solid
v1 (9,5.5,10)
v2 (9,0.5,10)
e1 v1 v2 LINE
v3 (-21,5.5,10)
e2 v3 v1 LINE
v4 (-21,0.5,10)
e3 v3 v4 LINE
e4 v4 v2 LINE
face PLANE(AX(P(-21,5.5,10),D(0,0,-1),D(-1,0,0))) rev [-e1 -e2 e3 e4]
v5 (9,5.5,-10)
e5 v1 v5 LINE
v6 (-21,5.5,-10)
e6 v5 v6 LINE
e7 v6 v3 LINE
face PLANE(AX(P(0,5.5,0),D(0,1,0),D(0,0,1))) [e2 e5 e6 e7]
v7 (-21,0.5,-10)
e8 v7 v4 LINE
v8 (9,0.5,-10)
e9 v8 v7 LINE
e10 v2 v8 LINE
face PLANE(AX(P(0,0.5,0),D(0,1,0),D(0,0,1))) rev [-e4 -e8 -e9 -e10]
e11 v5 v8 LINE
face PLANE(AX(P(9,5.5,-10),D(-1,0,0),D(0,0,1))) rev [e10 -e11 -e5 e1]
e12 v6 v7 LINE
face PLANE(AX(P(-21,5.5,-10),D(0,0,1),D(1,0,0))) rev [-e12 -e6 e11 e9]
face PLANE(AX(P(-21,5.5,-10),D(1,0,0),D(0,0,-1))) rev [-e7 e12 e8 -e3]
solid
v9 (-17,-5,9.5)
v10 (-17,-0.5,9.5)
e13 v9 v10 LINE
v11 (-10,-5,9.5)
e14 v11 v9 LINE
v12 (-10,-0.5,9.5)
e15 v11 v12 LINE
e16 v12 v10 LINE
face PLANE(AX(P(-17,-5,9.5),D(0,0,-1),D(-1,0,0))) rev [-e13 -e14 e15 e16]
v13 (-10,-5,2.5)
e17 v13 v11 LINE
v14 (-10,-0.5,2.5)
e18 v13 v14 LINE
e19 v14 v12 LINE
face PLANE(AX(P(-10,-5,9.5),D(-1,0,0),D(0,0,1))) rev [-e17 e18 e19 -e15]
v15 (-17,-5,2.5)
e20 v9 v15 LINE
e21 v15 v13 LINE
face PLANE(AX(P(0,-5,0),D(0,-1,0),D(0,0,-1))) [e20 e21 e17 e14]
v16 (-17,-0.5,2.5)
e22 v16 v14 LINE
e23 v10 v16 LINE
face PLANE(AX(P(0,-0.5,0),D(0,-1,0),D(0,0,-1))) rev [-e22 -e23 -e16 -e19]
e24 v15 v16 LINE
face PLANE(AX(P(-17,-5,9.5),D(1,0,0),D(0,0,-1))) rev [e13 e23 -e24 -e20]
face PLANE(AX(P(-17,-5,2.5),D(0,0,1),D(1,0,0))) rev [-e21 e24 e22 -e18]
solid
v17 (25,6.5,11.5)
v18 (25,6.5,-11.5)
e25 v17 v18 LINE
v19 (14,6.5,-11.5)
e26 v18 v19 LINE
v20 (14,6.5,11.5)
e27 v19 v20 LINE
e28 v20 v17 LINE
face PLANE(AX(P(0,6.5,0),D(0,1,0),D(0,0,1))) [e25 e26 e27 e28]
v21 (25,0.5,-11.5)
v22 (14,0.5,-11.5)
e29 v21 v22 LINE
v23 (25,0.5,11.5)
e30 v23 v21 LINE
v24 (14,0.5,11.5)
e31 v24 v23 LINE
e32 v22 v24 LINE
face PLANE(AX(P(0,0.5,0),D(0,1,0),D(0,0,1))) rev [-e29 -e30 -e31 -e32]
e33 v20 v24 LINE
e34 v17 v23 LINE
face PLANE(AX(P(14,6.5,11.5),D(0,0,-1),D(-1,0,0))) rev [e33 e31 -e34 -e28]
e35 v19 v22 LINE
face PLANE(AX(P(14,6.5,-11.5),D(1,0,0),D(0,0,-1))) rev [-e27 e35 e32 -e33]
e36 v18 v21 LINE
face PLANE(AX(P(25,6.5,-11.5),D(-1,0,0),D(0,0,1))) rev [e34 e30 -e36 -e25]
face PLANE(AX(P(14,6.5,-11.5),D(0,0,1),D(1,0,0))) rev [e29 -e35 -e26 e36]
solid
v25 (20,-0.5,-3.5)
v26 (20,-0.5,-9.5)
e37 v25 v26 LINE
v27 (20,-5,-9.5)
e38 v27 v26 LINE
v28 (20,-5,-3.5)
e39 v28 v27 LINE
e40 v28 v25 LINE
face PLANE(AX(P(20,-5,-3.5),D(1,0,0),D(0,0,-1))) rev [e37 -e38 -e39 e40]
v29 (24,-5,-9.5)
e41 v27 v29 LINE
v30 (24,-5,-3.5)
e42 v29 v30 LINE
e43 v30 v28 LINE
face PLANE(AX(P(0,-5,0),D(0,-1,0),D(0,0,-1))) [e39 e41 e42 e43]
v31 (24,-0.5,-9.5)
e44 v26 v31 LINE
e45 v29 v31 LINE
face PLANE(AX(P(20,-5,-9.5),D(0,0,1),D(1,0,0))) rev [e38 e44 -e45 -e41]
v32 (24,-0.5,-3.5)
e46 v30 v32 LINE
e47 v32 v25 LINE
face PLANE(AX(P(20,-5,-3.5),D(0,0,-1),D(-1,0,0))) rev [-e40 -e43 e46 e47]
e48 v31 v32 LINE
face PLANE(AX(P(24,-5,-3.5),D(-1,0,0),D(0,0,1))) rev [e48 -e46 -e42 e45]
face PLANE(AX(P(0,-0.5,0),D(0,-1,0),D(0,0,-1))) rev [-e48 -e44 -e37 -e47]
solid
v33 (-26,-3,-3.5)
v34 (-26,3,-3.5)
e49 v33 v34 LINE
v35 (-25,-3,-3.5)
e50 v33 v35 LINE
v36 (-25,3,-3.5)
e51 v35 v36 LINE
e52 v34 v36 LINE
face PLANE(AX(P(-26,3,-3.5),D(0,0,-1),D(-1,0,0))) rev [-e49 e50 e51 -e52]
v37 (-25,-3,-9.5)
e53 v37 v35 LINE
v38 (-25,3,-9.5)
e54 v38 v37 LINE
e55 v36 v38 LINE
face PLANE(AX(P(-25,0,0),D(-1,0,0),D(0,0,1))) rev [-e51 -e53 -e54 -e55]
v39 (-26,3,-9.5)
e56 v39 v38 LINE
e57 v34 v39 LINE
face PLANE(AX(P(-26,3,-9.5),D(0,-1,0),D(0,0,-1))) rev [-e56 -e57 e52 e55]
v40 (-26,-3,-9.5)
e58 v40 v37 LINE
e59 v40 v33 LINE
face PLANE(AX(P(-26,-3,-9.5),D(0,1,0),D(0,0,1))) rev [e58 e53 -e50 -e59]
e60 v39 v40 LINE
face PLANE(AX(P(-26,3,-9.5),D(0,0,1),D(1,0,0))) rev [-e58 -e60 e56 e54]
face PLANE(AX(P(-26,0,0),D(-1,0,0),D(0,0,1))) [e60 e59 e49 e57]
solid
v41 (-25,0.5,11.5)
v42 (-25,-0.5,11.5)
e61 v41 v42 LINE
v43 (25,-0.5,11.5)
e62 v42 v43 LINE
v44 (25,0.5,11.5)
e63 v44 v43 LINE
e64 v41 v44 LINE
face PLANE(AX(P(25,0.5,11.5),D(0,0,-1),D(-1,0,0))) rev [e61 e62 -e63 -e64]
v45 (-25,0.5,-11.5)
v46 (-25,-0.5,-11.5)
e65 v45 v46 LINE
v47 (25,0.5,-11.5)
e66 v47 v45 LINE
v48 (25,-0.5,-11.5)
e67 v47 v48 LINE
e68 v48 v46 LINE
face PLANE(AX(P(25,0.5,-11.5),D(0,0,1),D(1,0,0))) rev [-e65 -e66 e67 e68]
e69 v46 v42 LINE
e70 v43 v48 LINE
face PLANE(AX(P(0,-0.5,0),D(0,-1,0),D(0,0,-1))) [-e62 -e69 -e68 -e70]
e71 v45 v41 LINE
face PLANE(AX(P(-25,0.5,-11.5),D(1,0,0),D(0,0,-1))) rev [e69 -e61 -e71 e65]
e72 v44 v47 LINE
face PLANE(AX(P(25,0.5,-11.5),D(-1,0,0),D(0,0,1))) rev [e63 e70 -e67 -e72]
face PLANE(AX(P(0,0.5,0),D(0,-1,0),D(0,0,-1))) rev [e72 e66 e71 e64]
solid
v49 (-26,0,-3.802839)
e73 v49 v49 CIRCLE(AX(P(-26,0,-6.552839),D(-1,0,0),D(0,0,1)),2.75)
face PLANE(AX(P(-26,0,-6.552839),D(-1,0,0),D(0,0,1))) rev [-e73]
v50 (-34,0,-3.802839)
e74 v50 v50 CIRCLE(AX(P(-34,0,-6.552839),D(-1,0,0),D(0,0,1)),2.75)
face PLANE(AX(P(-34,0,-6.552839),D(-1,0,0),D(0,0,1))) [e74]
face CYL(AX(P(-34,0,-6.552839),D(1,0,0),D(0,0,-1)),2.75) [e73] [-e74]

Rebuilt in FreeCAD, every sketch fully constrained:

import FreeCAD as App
import Part
import Sketcher

doc = App.newDocument("Part")
params = doc.addObject("Spreadsheet::Sheet", "Params")
for row, (alias, value) in enumerate([
    ("sketch1_width", "50 mm"),
    ("sketch1_height", "23 mm"),
    ("pad1_length", "1 mm"),
    ("sketch2_width", "30 mm"),
    ("sketch2_height", "20 mm"),
    ("pad2_length", "5 mm"),
    ("sketch3_width", "7 mm"),
    ("pad3_length", "4.5 mm"),
    ("sketch4_width", "4 mm"),
    ("sketch4_height", "6 mm"),
    ("pad4_length", "4.5 mm"),
    ("sketch5_width", "6 mm"),
    ("pad5_length", "1 mm"),
    ("sketch6_diameter", "5.5 mm"),
    ("pad6_length", "8 mm"),
    ("sketch7_width", "11 mm"),
    ("sketch7_height", "23 mm"),
    ("pad7_length", "6 mm"),
], start=1):
    params.set(f"A{row}", alias)
    params.set(f"B{row}", "=" + value)
    params.setAlias(f"B{row}", alias)

body = doc.addObject("PartDesign::Body", "Body")

# Sketch on XZ plane
sketch1 = doc.addObject("Sketcher::SketchObject", "Sketch")
body.addObject(sketch1)
sketch1.AttachmentSupport = (doc.XZ_Plane, [""])
sketch1.MapMode = "FlatFace"
sketch1.addGeometry([
    Part.LineSegment(App.Vector(-25, -12, 0), App.Vector(-25, 12, 0)),
    Part.LineSegment(App.Vector(-25, 12, 0), App.Vector(25, 12, 0)),
    Part.LineSegment(App.Vector(25, 12, 0), App.Vector(25, -12, 0)),
    Part.LineSegment(App.Vector(25, -12, 0), App.Vector(-25, -12, 0)),
], False)
sketch1.addConstraint([
    Sketcher.Constraint("Coincident", 0, 2, 1, 1),
    Sketcher.Constraint("Coincident", 1, 2, 2, 1),
    Sketcher.Constraint("Coincident", 2, 2, 3, 1),
    Sketcher.Constraint("Coincident", 3, 2, 0, 1),
    Sketcher.Constraint("Vertical", 0),
    Sketcher.Constraint("Horizontal", 1),
    Sketcher.Constraint("Vertical", 2),
    Sketcher.Constraint("Horizontal", 3),
    Sketcher.Constraint("Symmetric", 0, 2, 2, 2, -1, 1),
    Sketcher.Constraint("DistanceX", 1, 1, 1, 2, 50.0),
    Sketcher.Constraint("DistanceY", 0, 1, 0, 2, 23.0),
])
sketch1.setExpression("Constraints[9]", "Params.sketch1_width")
sketch1.setExpression("Constraints[10]", "Params.sketch1_height")
pad1 = doc.addObject("PartDesign::Pad", "Pad")
body.addObject(pad1)
pad1.Profile = sketch1
pad1.setExpression("Length", "Params.pad1_length")
pad1.Midplane = True
body2 = doc.addObject("PartDesign::Body", "Body001")

# Sketch on XZ plane
sketch2 = doc.addObject("Sketcher::SketchObject", "Sketch001")
body2.addObject(sketch2)
sketch2.AttachmentSupport = (doc.getObject("XZ_Plane001"), [""])
sketch2.MapMode = "FlatFace"
sketch2.AttachmentOffset = App.Placement(App.Vector(0, 0, -0.5), App.Rotation())
sketch2.addGeometry([
    Part.LineSegment(App.Vector(-21, -10, 0), App.Vector(-21, 10, 0)),
    Part.LineSegment(App.Vector(-21, 10, 0), App.Vector(9, 10, 0)),
    Part.LineSegment(App.Vector(9, 10, 0), App.Vector(9, -10, 0)),
    Part.LineSegment(App.Vector(9, -10, 0), App.Vector(-21, -10, 0)),
], False)
sketch2.addConstraint([
    Sketcher.Constraint("Coincident", 0, 2, 1, 1),
    Sketcher.Constraint("Coincident", 1, 2, 2, 1),
    Sketcher.Constraint("Coincident", 2, 2, 3, 1),
    Sketcher.Constraint("Coincident", 3, 2, 0, 1),
    Sketcher.Constraint("Vertical", 0),
    Sketcher.Constraint("Horizontal", 1),
    Sketcher.Constraint("Vertical", 2),
    Sketcher.Constraint("Horizontal", 3),
    Sketcher.Constraint("DistanceX", 1, 1, 1, 2, 30.0),
    Sketcher.Constraint("DistanceY", 0, 1, 0, 2, 20.0),
    Sketcher.Constraint("DistanceX", 0, 2, -1, 1, 21.0),
    Sketcher.Constraint("DistanceY", -1, 1, 0, 2, 10.0),
])
sketch2.setExpression("Constraints[8]", "Params.sketch2_width")
sketch2.setExpression("Constraints[9]", "Params.sketch2_height")
pad2 = doc.addObject("PartDesign::Pad", "Pad001")
body2.addObject(pad2)
pad2.Profile = sketch2
pad2.setExpression("Length", "Params.pad2_length")
pad2.Reversed = True
body3 = doc.addObject("PartDesign::Body", "Body002")

# Sketch on XZ plane
sketch3 = doc.addObject("Sketcher::SketchObject", "Sketch002")
body3.addObject(sketch3)
sketch3.AttachmentSupport = (doc.getObject("XZ_Plane002"), [""])
sketch3.MapMode = "FlatFace"
sketch3.AttachmentOffset = App.Placement(App.Vector(0, 0, 0.5), App.Rotation())
sketch3.addGeometry([
    Part.LineSegment(App.Vector(-17, 10, 0), App.Vector(-17, 2, 0)),
    Part.LineSegment(App.Vector(-17, 2, 0), App.Vector(-10, 2, 0)),
    Part.LineSegment(App.Vector(-10, 2, 0), App.Vector(-10, 10, 0)),
    Part.LineSegment(App.Vector(-10, 10, 0), App.Vector(-17, 10, 0)),
], False)
sketch3.addConstraint([
    Sketcher.Constraint("Coincident", 0, 2, 1, 1),
    Sketcher.Constraint("Coincident", 1, 2, 2, 1),
    Sketcher.Constraint("Coincident", 2, 2, 3, 1),
    Sketcher.Constraint("Coincident", 3, 2, 0, 1),
    Sketcher.Constraint("Vertical", 0),
    Sketcher.Constraint("Horizontal", 1),
    Sketcher.Constraint("Vertical", 2),
    Sketcher.Constraint("Horizontal", 3),
    Sketcher.Constraint("Equal", 3, 0),
    Sketcher.Constraint("DistanceX", 1, 1, 1, 2, 7.0),
    Sketcher.Constraint("DistanceX", 0, 2, -1, 1, 17.0),
    Sketcher.Constraint("DistanceY", -1, 1, 0, 2, 2.5),
])
sketch3.setExpression("Constraints[9]", "Params.sketch3_width")
pad3 = doc.addObject("PartDesign::Pad", "Pad002")
body3.addObject(pad3)
pad3.Profile = sketch3
pad3.setExpression("Length", "Params.pad3_length")
body4 = doc.addObject("PartDesign::Body", "Body003")

# Sketch on XZ plane
sketch4 = doc.addObject("Sketcher::SketchObject", "Sketch003")
body4.addObject(sketch4)
sketch4.AttachmentSupport = (doc.getObject("XZ_Plane003"), [""])
sketch4.MapMode = "FlatFace"
sketch4.AttachmentOffset = App.Placement(App.Vector(0, 0, 0.5), App.Rotation())
sketch4.addGeometry([
    Part.LineSegment(App.Vector(20, -3.5, 0), App.Vector(20, -9.5, 0)),
    Part.LineSegment(App.Vector(20, -9.5, 0), App.Vector(24, -9.5, 0)),
    Part.LineSegment(App.Vector(24, -9.5, 0), App.Vector(24, -3.5, 0)),
    Part.LineSegment(App.Vector(24, -3.5, 0), App.Vector(20, -3.5, 0)),
], False)
sketch4.addConstraint([
    Sketcher.Constraint("Coincident", 0, 2, 1, 1),
    Sketcher.Constraint("Coincident", 1, 2, 2, 1),
    Sketcher.Constraint("Coincident", 2, 2, 3, 1),
    Sketcher.Constraint("Coincident", 3, 2, 0, 1),
    Sketcher.Constraint("Vertical", 0),
    Sketcher.Constraint("Horizontal", 1),
    Sketcher.Constraint("Vertical", 2),
    Sketcher.Constraint("Horizontal", 3),
    Sketcher.Constraint("DistanceX", 1, 1, 1, 2, 4.0),
    Sketcher.Constraint("DistanceY", 0, 2, 0, 1, 6.0),
    Sketcher.Constraint("DistanceX", -1, 1, 0, 2, 20.0),
    Sketcher.Constraint("DistanceY", 0, 2, -1, 1, 9.5),
])
sketch4.setExpression("Constraints[8]", "Params.sketch4_width")
sketch4.setExpression("Constraints[9]", "Params.sketch4_height")
pad4 = doc.addObject("PartDesign::Pad", "Pad003")
body4.addObject(pad4)
pad4.Profile = sketch4
pad4.setExpression("Length", "Params.pad4_length")
body5 = doc.addObject("PartDesign::Body", "Body004")

# Sketch on YZ plane
sketch5 = doc.addObject("Sketcher::SketchObject", "Sketch004")
body5.addObject(sketch5)
sketch5.AttachmentSupport = (doc.getObject("YZ_Plane004"), [""])
sketch5.MapMode = "FlatFace"
sketch5.AttachmentOffset = App.Placement(App.Vector(0, 0, -25), App.Rotation())
sketch5.addGeometry([
    Part.LineSegment(App.Vector(3, -10, 0), App.Vector(-3, -10, 0)),
    Part.LineSegment(App.Vector(-3, -10, 0), App.Vector(-3, -4, 0)),
    Part.LineSegment(App.Vector(-3, -4, 0), App.Vector(3, -4, 0)),
    Part.LineSegment(App.Vector(3, -4, 0), App.Vector(3, -10, 0)),
], False)
sketch5.addConstraint([
    Sketcher.Constraint("Coincident", 0, 2, 1, 1),
    Sketcher.Constraint("Coincident", 1, 2, 2, 1),
    Sketcher.Constraint("Coincident", 2, 2, 3, 1),
    Sketcher.Constraint("Coincident", 3, 2, 0, 1),
    Sketcher.Constraint("Horizontal", 0),
    Sketcher.Constraint("Vertical", 1),
    Sketcher.Constraint("Horizontal", 2),
    Sketcher.Constraint("Vertical", 3),
    Sketcher.Constraint("Equal", 2, 1),
    Sketcher.Constraint("DistanceX", 0, 2, 0, 1, 6.0),
    Sketcher.Constraint("DistanceX", 0, 2, -1, 1, 3.0),
    Sketcher.Constraint("DistanceY", 0, 2, -1, 1, 9.5),
])
sketch5.setExpression("Constraints[9]", "Params.sketch5_width")
pad5 = doc.addObject("PartDesign::Pad", "Pad004")
body5.addObject(pad5)
pad5.Profile = sketch5
pad5.setExpression("Length", "Params.pad5_length")
pad5.Reversed = True
body6 = doc.addObject("PartDesign::Body", "Body005")

# Sketch on YZ plane
sketch6 = doc.addObject("Sketcher::SketchObject", "Sketch005")
body6.addObject(sketch6)
sketch6.AttachmentSupport = (doc.getObject("YZ_Plane005"), [""])
sketch6.MapMode = "FlatFace"
sketch6.AttachmentOffset = App.Placement(App.Vector(0, 0, -26), App.Rotation())
sketch6.addGeometry(Part.Circle(App.Vector(0, -6.6, 0), App.Vector(0, 0, 1), 2.8), False)
sketch6.addConstraint([
    Sketcher.Constraint("PointOnObject", 0, 3, -2),
    Sketcher.Constraint("Diameter", 0, 5.5),
    Sketcher.Constraint("DistanceY", 0, 3, -1, 1, 6.552839),
])
sketch6.setExpression("Constraints[1]", "Params.sketch6_diameter")
pad6 = doc.addObject("PartDesign::Pad", "Pad005")
body6.addObject(pad6)
pad6.Profile = sketch6
pad6.setExpression("Length", "Params.pad6_length")
pad6.Reversed = True
body7 = doc.addObject("PartDesign::Body", "Body006")

# Sketch on XZ plane
sketch7 = doc.addObject("Sketcher::SketchObject", "Sketch006")
body7.addObject(sketch7)
sketch7.AttachmentSupport = (doc.getObject("XZ_Plane006"), [""])
sketch7.MapMode = "FlatFace"
sketch7.AttachmentOffset = App.Placement(App.Vector(0, 0, -0.5), App.Rotation())
sketch7.addGeometry([
    Part.LineSegment(App.Vector(14, -12, 0), App.Vector(14, 12, 0)),
    Part.LineSegment(App.Vector(14, 12, 0), App.Vector(25, 12, 0)),
    Part.LineSegment(App.Vector(25, 12, 0), App.Vector(25, -12, 0)),
    Part.LineSegment(App.Vector(25, -12, 0), App.Vector(14, -12, 0)),
], False)
sketch7.addConstraint([
    Sketcher.Constraint("Coincident", 0, 2, 1, 1),
    Sketcher.Constraint("Coincident", 1, 2, 2, 1),
    Sketcher.Constraint("Coincident", 2, 2, 3, 1),
    Sketcher.Constraint("Coincident", 3, 2, 0, 1),
    Sketcher.Constraint("Vertical", 0),
    Sketcher.Constraint("Horizontal", 1),
    Sketcher.Constraint("Vertical", 2),
    Sketcher.Constraint("Horizontal", 3),
    Sketcher.Constraint("DistanceX", 1, 1, 1, 2, 11.0),
    Sketcher.Constraint("DistanceY", 0, 1, 0, 2, 23.0),
    Sketcher.Constraint("DistanceX", -1, 1, 0, 2, 14.0),
    Sketcher.Constraint("DistanceY", -1, 1, 0, 2, 11.5),
])
sketch7.setExpression("Constraints[8]", "Params.sketch7_width")
sketch7.setExpression("Constraints[9]", "Params.sketch7_height")
pad7 = doc.addObject("PartDesign::Pad", "Pad006")
body7.addObject(pad7)
pad7.Profile = sketch7
pad7.setExpression("Length", "Params.pad7_length")
pad7.Reversed = True

doc.recompute()
